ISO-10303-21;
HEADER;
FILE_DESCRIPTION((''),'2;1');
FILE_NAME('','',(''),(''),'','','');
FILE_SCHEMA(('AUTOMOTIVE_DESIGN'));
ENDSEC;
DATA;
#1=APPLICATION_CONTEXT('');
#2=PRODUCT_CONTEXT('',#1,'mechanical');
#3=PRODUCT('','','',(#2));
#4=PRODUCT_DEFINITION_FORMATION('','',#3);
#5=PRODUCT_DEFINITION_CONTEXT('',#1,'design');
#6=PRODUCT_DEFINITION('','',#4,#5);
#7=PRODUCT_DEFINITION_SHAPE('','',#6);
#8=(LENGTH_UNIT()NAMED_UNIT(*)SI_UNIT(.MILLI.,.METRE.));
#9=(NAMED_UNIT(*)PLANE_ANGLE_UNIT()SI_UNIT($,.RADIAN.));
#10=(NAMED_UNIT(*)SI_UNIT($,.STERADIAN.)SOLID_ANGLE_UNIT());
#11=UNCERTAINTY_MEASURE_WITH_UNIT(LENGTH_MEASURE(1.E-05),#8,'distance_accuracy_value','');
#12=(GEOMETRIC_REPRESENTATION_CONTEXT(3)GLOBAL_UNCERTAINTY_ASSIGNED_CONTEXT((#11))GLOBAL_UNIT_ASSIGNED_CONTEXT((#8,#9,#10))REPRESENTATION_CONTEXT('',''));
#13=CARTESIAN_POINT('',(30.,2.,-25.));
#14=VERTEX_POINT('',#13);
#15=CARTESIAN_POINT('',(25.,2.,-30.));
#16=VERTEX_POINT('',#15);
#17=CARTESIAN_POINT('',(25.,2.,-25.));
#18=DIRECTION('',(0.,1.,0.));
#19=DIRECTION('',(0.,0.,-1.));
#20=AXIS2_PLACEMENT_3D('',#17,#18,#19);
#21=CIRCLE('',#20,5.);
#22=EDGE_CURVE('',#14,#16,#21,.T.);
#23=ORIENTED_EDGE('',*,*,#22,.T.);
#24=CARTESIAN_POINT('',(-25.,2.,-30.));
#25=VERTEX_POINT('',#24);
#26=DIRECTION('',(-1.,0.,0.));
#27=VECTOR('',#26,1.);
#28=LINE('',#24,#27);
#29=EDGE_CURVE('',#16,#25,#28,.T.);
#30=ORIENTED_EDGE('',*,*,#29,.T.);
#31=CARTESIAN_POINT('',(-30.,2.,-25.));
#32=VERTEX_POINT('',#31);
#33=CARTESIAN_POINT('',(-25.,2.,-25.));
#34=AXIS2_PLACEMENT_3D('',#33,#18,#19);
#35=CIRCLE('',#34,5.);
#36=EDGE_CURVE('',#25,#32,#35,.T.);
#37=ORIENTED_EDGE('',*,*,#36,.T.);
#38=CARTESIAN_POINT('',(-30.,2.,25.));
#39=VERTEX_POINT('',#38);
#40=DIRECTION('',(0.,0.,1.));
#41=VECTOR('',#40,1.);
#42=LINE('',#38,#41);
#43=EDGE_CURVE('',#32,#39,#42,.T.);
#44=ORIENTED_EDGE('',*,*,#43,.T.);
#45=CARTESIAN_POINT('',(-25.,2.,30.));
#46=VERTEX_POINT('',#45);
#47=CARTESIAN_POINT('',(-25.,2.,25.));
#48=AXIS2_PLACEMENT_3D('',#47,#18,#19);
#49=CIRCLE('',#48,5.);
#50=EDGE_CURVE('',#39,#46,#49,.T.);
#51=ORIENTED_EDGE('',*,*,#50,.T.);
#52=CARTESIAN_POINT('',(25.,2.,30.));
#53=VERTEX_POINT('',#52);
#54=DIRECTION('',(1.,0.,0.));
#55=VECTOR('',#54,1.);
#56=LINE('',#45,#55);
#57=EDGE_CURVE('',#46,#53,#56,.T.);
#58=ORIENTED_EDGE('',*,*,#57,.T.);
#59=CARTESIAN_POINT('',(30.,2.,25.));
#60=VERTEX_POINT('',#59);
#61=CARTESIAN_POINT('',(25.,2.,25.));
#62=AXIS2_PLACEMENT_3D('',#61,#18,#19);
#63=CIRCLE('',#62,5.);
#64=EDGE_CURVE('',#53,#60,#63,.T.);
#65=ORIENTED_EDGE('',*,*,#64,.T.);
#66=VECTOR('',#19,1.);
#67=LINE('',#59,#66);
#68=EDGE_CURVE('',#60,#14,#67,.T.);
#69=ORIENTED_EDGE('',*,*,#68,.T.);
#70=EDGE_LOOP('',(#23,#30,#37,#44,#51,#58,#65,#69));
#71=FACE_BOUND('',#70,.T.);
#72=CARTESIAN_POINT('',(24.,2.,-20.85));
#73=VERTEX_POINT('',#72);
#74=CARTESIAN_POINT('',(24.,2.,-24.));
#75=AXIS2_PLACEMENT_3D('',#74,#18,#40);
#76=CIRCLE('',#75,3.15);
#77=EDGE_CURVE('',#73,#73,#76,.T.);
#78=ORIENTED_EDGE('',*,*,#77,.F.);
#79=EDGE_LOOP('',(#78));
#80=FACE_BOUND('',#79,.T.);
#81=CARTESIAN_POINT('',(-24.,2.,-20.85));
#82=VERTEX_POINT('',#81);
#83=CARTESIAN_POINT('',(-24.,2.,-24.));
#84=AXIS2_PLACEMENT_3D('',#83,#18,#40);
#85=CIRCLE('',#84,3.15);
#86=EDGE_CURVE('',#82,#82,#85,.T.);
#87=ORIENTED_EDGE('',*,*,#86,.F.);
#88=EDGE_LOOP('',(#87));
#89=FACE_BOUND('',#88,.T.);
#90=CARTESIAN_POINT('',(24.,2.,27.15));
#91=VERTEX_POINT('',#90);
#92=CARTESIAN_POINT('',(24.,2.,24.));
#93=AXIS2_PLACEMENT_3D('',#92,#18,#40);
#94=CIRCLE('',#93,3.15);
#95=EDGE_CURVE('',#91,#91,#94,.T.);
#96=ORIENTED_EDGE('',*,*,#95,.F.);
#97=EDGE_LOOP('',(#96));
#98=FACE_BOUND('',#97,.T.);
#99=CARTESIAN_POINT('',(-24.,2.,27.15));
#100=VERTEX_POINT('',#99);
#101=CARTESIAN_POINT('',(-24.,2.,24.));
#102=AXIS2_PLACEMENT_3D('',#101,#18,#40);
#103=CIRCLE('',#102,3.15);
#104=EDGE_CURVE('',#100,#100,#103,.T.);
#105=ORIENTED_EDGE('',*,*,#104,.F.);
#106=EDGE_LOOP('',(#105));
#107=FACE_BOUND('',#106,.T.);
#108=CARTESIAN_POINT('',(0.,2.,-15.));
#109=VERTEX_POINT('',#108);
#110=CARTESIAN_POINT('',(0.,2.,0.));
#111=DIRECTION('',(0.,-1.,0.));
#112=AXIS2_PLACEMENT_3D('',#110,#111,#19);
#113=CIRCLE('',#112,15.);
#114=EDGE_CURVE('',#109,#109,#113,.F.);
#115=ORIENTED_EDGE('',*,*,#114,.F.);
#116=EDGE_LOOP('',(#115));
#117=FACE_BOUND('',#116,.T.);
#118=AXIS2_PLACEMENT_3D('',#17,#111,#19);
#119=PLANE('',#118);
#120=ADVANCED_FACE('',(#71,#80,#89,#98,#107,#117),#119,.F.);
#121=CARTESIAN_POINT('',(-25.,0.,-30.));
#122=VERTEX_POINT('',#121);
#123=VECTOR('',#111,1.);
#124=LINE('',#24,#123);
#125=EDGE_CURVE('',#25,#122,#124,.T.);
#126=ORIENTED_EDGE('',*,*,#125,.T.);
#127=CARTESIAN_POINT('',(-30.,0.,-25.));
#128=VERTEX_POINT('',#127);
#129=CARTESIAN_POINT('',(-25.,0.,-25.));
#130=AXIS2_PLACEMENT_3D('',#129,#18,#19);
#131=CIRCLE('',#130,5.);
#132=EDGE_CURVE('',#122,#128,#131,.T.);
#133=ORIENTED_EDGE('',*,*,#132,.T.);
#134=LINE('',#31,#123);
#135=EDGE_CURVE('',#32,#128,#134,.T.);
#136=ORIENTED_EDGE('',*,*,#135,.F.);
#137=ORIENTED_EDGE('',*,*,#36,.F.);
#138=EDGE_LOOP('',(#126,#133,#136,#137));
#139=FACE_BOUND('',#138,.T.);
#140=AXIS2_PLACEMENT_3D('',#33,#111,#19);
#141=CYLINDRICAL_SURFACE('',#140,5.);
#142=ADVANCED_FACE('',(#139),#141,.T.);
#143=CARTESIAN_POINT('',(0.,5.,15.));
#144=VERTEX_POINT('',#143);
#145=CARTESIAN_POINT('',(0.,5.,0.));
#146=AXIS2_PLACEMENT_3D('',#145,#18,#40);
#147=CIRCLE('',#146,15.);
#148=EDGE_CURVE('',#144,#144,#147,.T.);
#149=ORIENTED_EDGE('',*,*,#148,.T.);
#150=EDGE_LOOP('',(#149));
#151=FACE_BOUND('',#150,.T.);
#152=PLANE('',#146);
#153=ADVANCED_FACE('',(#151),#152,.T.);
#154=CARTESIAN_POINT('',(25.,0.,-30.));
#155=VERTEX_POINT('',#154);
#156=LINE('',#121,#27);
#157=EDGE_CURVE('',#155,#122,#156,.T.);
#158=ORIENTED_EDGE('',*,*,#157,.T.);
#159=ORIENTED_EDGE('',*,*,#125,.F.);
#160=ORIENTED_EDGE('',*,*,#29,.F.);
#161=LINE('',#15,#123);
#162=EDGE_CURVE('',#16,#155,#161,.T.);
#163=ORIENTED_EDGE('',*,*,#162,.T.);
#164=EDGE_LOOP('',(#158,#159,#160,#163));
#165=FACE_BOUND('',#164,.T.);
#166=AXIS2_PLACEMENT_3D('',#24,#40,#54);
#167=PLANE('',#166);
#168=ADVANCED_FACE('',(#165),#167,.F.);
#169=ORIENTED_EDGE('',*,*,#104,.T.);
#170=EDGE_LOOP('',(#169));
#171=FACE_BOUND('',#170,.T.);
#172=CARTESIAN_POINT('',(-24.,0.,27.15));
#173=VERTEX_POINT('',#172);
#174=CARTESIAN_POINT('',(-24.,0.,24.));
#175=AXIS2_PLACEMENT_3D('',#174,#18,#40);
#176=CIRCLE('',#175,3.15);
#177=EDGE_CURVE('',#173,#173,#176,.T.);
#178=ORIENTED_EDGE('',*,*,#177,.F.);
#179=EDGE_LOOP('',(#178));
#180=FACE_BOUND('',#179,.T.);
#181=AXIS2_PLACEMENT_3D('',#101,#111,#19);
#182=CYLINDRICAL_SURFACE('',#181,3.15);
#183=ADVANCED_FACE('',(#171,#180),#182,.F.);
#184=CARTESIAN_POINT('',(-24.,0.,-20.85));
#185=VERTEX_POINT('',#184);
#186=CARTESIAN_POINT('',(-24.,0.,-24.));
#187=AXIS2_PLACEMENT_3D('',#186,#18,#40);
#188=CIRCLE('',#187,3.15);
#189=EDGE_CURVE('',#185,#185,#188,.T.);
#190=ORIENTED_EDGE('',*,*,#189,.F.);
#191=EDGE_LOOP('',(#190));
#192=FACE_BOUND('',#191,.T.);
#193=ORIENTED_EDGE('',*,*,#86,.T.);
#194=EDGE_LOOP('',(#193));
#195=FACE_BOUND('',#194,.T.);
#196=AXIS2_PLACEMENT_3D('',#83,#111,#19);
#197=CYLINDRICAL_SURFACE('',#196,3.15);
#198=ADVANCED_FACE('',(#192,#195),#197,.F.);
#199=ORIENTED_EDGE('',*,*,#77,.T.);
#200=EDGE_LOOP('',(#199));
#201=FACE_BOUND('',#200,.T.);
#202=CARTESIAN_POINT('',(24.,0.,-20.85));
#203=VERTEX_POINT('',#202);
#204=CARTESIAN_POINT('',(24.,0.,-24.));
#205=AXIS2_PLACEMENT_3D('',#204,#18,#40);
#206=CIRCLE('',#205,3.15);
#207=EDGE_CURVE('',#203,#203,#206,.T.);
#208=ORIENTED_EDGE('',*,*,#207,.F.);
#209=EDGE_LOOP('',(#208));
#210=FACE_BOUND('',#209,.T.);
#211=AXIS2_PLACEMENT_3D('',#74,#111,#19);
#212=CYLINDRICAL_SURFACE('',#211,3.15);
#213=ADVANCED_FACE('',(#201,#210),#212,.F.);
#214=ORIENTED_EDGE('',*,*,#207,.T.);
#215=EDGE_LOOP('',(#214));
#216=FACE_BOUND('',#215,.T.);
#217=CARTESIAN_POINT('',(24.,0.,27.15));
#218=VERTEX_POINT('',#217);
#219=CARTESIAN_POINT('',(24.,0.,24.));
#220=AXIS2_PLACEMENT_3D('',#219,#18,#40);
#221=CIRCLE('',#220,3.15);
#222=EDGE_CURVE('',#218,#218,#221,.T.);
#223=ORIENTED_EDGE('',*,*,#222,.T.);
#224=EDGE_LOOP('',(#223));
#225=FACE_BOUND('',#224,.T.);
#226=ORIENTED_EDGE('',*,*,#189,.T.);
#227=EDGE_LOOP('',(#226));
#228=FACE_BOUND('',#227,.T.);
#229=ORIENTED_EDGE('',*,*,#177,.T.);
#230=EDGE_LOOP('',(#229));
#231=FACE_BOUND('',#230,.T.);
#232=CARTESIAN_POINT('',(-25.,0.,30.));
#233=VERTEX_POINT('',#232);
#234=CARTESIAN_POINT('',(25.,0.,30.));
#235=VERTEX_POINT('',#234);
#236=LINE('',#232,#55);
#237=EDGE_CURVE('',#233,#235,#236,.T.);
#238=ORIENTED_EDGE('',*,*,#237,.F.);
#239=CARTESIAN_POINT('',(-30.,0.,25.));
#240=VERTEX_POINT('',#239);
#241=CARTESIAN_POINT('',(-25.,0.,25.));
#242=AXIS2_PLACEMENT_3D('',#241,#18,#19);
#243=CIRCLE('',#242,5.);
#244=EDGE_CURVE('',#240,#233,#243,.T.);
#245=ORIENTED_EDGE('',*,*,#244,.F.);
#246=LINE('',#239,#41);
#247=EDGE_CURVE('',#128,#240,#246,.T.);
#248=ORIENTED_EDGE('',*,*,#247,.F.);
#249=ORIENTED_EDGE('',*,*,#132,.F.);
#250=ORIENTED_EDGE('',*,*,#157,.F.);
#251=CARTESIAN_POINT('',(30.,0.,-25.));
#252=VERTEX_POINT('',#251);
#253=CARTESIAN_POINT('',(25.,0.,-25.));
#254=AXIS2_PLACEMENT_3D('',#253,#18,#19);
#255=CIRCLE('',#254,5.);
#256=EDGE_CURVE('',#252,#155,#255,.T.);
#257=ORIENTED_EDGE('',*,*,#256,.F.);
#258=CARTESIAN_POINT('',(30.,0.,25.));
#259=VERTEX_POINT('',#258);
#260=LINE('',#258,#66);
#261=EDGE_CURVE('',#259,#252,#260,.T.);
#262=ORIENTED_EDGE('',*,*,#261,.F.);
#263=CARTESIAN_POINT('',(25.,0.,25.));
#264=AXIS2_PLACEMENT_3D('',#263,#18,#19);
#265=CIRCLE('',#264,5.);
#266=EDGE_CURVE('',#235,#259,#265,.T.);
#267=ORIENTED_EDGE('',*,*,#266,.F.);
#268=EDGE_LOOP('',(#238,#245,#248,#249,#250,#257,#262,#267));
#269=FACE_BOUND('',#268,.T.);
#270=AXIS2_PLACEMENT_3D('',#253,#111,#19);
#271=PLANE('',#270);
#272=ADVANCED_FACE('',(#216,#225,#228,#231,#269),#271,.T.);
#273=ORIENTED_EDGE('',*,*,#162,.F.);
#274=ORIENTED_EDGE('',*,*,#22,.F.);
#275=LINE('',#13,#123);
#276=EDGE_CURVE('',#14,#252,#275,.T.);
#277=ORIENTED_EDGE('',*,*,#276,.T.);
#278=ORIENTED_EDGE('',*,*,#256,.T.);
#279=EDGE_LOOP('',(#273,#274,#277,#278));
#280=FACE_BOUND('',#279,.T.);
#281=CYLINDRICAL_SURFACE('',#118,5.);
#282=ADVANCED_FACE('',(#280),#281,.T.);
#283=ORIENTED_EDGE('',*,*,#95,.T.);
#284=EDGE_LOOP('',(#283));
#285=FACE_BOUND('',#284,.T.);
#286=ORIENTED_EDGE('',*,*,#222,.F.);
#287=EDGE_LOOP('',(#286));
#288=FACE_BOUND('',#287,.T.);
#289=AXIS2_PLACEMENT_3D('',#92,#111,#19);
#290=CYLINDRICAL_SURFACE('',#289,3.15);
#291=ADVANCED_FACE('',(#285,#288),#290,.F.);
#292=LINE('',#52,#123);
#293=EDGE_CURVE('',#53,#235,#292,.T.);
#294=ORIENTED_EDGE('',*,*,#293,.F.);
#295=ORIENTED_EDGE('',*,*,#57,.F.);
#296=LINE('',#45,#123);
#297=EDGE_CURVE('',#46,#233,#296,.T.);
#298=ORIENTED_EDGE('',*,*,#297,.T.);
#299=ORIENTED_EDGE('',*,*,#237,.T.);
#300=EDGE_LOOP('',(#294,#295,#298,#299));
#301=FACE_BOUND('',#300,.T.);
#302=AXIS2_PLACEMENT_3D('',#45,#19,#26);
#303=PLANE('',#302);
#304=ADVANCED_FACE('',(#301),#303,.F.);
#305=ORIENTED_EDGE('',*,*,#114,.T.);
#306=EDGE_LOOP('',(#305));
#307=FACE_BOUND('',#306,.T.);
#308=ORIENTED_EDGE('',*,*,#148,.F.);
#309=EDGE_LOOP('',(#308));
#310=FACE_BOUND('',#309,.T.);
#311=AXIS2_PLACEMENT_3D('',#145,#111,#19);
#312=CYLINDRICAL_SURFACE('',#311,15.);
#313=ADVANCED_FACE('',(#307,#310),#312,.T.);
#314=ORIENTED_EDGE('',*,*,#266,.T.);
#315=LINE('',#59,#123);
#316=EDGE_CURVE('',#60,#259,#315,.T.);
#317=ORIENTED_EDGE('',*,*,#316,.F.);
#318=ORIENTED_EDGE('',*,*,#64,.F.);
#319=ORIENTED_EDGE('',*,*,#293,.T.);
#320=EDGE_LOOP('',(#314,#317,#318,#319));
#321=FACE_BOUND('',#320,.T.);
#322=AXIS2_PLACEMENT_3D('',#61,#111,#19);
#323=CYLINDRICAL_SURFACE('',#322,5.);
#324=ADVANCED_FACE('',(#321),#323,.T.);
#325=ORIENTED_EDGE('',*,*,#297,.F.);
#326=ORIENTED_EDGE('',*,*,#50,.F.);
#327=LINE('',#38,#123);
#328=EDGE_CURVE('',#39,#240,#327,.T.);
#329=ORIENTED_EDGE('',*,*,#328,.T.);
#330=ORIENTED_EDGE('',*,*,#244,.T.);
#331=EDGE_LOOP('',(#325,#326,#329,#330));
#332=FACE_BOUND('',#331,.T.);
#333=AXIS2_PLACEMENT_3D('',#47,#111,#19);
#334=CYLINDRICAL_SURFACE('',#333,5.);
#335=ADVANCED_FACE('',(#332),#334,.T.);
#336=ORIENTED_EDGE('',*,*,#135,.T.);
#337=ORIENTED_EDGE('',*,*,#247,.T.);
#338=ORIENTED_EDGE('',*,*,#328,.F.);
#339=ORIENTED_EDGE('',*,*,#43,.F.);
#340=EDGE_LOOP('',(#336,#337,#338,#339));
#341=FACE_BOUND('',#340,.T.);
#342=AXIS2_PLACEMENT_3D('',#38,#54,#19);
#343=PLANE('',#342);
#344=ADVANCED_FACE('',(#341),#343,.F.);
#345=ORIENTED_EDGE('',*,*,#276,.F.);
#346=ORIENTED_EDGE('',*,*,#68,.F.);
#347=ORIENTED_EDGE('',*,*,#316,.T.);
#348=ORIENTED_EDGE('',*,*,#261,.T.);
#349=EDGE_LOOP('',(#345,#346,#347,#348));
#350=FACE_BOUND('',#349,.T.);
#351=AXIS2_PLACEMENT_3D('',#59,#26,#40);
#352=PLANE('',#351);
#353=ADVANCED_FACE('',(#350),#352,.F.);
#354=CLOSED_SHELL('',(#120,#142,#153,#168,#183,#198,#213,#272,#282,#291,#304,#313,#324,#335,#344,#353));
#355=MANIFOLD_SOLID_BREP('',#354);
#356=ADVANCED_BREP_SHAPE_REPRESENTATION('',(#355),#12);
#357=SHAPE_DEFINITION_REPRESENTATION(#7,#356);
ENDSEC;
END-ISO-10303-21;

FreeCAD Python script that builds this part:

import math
import FreeCAD as App
import Part
import Sketcher

doc = App.newDocument("Part")
body = doc.addObject("PartDesign::Body", "Body")

sketch1 = body.newObject("Sketcher::SketchObject", "Sketch")
sketch1.AttachmentSupport = (doc.getObject("XZ_Plane"), [""])
sketch1.MapMode = "FlatFace"
sketch1.addGeometry([
    Part.LineSegment(App.Vector(-25, 30, 0), App.Vector(25, 30, 0)),
    Part.ArcOfCircle(Part.Circle(App.Vector(25, 25, 0), App.Vector(0, 0, 1), 5), math.radians(0), math.radians(90)),
    Part.LineSegment(App.Vector(30, 25, 0), App.Vector(30, -25, 0)),
    Part.ArcOfCircle(Part.Circle(App.Vector(25, -25, 0), App.Vector(0, 0, 1), 5), math.radians(-90), math.radians(0)),
    Part.LineSegment(App.Vector(25, -30, 0), App.Vector(-25, -30, 0)),
    Part.ArcOfCircle(Part.Circle(App.Vector(-25, -25, 0), App.Vector(0, 0, 1), 5), math.radians(180), math.radians(270)),
    Part.LineSegment(App.Vector(-30, -25, 0), App.Vector(-30, 25, 0)),
    Part.ArcOfCircle(Part.Circle(App.Vector(-25, 25, 0), App.Vector(0, 0, 1), 5), math.radians(90), math.radians(180)),
    Part.Circle(App.Vector(-24, 24, 0), App.Vector(0, 0, 1), 3.15),
    Part.Circle(App.Vector(24, 24, 0), App.Vector(0, 0, 1), 3.15),
    Part.Circle(App.Vector(-24, -24, 0), App.Vector(0, 0, 1), 3.15),
    Part.Circle(App.Vector(24, -24, 0), App.Vector(0, 0, 1), 3.15),
], False)
sketch1.addConstraint([
    Sketcher.Constraint("Tangent", 0, 2, 1, 2),
    Sketcher.Constraint("Tangent", 1, 1, 2, 1),
    Sketcher.Constraint("Tangent", 2, 2, 3, 2),
    Sketcher.Constraint("Tangent", 3, 1, 4, 1),
    Sketcher.Constraint("Tangent", 4, 2, 5, 2),
    Sketcher.Constraint("Tangent", 5, 1, 6, 1),
    Sketcher.Constraint("Tangent", 6, 2, 7, 2),
    Sketcher.Constraint("Tangent", 7, 1, 0, 1),
    Sketcher.Constraint("Horizontal", 0),
    Sketcher.Constraint("Vertical", 2),
    Sketcher.Constraint("Horizontal", 4),
    Sketcher.Constraint("Vertical", 6),
    Sketcher.Constraint("Equal", 1, 3),
    Sketcher.Constraint("Equal", 3, 5),
    Sketcher.Constraint("Equal", 5, 7),
    Sketcher.Constraint("Equal", 8, 9),
    Sketcher.Constraint("Equal", 9, 10),
    Sketcher.Constraint("Equal", 10, 11),
    Sketcher.Constraint("Symmetric", 1, 3, 5, 3, -1, 1),
    Sketcher.Constraint("Symmetric", 9, 3, 10, 3, -1, 1),
    Sketcher.Constraint("Symmetric", 8, 3, 11, 3, -1, 1),
    Sketcher.Constraint("Symmetric", 8, 3, 9, 3, -2),
    Sketcher.Constraint("Equal", 4, 2),
    Sketcher.Constraint("Radius", 1, 5.0),
    Sketcher.Constraint("Diameter", 8, 6.3),
    Sketcher.Constraint("DistanceX", 0, 1, 0, 2, 50.0),
    Sketcher.Constraint("DistanceX", 8, 3, -1, 1, 24.0),
    Sketcher.Constraint("DistanceY", -1, 1, 8, 3, 24.0),
])
pad1 = body.newObject("PartDesign::Pad", "Pad")
pad1.Profile = sketch1
pad1.Length = 2
pad1.Reversed = True

sketch2 = body.newObject("Sketcher::SketchObject", "Sketch001")
sketch2.AttachmentSupport = (doc.getObject("XZ_Plane"), [""])
sketch2.MapMode = "FlatFace"
sketch2.AttachmentOffset = App.Placement(App.Vector(0, 0, -2), App.Rotation())
sketch2.addGeometry(Part.Circle(App.Vector(0, 0, 0), App.Vector(0, 0, 1), 15), False)
sketch2.addConstraint([
    Sketcher.Constraint("Coincident", 0, 3, -1, 1),
    Sketcher.Constraint("Diameter", 0, 30.0),
])
pad2 = body.newObject("PartDesign::Pad", "Pad001")
pad2.Profile = sketch2
pad2.Length = 3
pad2.Reversed = True

doc.recompute()
